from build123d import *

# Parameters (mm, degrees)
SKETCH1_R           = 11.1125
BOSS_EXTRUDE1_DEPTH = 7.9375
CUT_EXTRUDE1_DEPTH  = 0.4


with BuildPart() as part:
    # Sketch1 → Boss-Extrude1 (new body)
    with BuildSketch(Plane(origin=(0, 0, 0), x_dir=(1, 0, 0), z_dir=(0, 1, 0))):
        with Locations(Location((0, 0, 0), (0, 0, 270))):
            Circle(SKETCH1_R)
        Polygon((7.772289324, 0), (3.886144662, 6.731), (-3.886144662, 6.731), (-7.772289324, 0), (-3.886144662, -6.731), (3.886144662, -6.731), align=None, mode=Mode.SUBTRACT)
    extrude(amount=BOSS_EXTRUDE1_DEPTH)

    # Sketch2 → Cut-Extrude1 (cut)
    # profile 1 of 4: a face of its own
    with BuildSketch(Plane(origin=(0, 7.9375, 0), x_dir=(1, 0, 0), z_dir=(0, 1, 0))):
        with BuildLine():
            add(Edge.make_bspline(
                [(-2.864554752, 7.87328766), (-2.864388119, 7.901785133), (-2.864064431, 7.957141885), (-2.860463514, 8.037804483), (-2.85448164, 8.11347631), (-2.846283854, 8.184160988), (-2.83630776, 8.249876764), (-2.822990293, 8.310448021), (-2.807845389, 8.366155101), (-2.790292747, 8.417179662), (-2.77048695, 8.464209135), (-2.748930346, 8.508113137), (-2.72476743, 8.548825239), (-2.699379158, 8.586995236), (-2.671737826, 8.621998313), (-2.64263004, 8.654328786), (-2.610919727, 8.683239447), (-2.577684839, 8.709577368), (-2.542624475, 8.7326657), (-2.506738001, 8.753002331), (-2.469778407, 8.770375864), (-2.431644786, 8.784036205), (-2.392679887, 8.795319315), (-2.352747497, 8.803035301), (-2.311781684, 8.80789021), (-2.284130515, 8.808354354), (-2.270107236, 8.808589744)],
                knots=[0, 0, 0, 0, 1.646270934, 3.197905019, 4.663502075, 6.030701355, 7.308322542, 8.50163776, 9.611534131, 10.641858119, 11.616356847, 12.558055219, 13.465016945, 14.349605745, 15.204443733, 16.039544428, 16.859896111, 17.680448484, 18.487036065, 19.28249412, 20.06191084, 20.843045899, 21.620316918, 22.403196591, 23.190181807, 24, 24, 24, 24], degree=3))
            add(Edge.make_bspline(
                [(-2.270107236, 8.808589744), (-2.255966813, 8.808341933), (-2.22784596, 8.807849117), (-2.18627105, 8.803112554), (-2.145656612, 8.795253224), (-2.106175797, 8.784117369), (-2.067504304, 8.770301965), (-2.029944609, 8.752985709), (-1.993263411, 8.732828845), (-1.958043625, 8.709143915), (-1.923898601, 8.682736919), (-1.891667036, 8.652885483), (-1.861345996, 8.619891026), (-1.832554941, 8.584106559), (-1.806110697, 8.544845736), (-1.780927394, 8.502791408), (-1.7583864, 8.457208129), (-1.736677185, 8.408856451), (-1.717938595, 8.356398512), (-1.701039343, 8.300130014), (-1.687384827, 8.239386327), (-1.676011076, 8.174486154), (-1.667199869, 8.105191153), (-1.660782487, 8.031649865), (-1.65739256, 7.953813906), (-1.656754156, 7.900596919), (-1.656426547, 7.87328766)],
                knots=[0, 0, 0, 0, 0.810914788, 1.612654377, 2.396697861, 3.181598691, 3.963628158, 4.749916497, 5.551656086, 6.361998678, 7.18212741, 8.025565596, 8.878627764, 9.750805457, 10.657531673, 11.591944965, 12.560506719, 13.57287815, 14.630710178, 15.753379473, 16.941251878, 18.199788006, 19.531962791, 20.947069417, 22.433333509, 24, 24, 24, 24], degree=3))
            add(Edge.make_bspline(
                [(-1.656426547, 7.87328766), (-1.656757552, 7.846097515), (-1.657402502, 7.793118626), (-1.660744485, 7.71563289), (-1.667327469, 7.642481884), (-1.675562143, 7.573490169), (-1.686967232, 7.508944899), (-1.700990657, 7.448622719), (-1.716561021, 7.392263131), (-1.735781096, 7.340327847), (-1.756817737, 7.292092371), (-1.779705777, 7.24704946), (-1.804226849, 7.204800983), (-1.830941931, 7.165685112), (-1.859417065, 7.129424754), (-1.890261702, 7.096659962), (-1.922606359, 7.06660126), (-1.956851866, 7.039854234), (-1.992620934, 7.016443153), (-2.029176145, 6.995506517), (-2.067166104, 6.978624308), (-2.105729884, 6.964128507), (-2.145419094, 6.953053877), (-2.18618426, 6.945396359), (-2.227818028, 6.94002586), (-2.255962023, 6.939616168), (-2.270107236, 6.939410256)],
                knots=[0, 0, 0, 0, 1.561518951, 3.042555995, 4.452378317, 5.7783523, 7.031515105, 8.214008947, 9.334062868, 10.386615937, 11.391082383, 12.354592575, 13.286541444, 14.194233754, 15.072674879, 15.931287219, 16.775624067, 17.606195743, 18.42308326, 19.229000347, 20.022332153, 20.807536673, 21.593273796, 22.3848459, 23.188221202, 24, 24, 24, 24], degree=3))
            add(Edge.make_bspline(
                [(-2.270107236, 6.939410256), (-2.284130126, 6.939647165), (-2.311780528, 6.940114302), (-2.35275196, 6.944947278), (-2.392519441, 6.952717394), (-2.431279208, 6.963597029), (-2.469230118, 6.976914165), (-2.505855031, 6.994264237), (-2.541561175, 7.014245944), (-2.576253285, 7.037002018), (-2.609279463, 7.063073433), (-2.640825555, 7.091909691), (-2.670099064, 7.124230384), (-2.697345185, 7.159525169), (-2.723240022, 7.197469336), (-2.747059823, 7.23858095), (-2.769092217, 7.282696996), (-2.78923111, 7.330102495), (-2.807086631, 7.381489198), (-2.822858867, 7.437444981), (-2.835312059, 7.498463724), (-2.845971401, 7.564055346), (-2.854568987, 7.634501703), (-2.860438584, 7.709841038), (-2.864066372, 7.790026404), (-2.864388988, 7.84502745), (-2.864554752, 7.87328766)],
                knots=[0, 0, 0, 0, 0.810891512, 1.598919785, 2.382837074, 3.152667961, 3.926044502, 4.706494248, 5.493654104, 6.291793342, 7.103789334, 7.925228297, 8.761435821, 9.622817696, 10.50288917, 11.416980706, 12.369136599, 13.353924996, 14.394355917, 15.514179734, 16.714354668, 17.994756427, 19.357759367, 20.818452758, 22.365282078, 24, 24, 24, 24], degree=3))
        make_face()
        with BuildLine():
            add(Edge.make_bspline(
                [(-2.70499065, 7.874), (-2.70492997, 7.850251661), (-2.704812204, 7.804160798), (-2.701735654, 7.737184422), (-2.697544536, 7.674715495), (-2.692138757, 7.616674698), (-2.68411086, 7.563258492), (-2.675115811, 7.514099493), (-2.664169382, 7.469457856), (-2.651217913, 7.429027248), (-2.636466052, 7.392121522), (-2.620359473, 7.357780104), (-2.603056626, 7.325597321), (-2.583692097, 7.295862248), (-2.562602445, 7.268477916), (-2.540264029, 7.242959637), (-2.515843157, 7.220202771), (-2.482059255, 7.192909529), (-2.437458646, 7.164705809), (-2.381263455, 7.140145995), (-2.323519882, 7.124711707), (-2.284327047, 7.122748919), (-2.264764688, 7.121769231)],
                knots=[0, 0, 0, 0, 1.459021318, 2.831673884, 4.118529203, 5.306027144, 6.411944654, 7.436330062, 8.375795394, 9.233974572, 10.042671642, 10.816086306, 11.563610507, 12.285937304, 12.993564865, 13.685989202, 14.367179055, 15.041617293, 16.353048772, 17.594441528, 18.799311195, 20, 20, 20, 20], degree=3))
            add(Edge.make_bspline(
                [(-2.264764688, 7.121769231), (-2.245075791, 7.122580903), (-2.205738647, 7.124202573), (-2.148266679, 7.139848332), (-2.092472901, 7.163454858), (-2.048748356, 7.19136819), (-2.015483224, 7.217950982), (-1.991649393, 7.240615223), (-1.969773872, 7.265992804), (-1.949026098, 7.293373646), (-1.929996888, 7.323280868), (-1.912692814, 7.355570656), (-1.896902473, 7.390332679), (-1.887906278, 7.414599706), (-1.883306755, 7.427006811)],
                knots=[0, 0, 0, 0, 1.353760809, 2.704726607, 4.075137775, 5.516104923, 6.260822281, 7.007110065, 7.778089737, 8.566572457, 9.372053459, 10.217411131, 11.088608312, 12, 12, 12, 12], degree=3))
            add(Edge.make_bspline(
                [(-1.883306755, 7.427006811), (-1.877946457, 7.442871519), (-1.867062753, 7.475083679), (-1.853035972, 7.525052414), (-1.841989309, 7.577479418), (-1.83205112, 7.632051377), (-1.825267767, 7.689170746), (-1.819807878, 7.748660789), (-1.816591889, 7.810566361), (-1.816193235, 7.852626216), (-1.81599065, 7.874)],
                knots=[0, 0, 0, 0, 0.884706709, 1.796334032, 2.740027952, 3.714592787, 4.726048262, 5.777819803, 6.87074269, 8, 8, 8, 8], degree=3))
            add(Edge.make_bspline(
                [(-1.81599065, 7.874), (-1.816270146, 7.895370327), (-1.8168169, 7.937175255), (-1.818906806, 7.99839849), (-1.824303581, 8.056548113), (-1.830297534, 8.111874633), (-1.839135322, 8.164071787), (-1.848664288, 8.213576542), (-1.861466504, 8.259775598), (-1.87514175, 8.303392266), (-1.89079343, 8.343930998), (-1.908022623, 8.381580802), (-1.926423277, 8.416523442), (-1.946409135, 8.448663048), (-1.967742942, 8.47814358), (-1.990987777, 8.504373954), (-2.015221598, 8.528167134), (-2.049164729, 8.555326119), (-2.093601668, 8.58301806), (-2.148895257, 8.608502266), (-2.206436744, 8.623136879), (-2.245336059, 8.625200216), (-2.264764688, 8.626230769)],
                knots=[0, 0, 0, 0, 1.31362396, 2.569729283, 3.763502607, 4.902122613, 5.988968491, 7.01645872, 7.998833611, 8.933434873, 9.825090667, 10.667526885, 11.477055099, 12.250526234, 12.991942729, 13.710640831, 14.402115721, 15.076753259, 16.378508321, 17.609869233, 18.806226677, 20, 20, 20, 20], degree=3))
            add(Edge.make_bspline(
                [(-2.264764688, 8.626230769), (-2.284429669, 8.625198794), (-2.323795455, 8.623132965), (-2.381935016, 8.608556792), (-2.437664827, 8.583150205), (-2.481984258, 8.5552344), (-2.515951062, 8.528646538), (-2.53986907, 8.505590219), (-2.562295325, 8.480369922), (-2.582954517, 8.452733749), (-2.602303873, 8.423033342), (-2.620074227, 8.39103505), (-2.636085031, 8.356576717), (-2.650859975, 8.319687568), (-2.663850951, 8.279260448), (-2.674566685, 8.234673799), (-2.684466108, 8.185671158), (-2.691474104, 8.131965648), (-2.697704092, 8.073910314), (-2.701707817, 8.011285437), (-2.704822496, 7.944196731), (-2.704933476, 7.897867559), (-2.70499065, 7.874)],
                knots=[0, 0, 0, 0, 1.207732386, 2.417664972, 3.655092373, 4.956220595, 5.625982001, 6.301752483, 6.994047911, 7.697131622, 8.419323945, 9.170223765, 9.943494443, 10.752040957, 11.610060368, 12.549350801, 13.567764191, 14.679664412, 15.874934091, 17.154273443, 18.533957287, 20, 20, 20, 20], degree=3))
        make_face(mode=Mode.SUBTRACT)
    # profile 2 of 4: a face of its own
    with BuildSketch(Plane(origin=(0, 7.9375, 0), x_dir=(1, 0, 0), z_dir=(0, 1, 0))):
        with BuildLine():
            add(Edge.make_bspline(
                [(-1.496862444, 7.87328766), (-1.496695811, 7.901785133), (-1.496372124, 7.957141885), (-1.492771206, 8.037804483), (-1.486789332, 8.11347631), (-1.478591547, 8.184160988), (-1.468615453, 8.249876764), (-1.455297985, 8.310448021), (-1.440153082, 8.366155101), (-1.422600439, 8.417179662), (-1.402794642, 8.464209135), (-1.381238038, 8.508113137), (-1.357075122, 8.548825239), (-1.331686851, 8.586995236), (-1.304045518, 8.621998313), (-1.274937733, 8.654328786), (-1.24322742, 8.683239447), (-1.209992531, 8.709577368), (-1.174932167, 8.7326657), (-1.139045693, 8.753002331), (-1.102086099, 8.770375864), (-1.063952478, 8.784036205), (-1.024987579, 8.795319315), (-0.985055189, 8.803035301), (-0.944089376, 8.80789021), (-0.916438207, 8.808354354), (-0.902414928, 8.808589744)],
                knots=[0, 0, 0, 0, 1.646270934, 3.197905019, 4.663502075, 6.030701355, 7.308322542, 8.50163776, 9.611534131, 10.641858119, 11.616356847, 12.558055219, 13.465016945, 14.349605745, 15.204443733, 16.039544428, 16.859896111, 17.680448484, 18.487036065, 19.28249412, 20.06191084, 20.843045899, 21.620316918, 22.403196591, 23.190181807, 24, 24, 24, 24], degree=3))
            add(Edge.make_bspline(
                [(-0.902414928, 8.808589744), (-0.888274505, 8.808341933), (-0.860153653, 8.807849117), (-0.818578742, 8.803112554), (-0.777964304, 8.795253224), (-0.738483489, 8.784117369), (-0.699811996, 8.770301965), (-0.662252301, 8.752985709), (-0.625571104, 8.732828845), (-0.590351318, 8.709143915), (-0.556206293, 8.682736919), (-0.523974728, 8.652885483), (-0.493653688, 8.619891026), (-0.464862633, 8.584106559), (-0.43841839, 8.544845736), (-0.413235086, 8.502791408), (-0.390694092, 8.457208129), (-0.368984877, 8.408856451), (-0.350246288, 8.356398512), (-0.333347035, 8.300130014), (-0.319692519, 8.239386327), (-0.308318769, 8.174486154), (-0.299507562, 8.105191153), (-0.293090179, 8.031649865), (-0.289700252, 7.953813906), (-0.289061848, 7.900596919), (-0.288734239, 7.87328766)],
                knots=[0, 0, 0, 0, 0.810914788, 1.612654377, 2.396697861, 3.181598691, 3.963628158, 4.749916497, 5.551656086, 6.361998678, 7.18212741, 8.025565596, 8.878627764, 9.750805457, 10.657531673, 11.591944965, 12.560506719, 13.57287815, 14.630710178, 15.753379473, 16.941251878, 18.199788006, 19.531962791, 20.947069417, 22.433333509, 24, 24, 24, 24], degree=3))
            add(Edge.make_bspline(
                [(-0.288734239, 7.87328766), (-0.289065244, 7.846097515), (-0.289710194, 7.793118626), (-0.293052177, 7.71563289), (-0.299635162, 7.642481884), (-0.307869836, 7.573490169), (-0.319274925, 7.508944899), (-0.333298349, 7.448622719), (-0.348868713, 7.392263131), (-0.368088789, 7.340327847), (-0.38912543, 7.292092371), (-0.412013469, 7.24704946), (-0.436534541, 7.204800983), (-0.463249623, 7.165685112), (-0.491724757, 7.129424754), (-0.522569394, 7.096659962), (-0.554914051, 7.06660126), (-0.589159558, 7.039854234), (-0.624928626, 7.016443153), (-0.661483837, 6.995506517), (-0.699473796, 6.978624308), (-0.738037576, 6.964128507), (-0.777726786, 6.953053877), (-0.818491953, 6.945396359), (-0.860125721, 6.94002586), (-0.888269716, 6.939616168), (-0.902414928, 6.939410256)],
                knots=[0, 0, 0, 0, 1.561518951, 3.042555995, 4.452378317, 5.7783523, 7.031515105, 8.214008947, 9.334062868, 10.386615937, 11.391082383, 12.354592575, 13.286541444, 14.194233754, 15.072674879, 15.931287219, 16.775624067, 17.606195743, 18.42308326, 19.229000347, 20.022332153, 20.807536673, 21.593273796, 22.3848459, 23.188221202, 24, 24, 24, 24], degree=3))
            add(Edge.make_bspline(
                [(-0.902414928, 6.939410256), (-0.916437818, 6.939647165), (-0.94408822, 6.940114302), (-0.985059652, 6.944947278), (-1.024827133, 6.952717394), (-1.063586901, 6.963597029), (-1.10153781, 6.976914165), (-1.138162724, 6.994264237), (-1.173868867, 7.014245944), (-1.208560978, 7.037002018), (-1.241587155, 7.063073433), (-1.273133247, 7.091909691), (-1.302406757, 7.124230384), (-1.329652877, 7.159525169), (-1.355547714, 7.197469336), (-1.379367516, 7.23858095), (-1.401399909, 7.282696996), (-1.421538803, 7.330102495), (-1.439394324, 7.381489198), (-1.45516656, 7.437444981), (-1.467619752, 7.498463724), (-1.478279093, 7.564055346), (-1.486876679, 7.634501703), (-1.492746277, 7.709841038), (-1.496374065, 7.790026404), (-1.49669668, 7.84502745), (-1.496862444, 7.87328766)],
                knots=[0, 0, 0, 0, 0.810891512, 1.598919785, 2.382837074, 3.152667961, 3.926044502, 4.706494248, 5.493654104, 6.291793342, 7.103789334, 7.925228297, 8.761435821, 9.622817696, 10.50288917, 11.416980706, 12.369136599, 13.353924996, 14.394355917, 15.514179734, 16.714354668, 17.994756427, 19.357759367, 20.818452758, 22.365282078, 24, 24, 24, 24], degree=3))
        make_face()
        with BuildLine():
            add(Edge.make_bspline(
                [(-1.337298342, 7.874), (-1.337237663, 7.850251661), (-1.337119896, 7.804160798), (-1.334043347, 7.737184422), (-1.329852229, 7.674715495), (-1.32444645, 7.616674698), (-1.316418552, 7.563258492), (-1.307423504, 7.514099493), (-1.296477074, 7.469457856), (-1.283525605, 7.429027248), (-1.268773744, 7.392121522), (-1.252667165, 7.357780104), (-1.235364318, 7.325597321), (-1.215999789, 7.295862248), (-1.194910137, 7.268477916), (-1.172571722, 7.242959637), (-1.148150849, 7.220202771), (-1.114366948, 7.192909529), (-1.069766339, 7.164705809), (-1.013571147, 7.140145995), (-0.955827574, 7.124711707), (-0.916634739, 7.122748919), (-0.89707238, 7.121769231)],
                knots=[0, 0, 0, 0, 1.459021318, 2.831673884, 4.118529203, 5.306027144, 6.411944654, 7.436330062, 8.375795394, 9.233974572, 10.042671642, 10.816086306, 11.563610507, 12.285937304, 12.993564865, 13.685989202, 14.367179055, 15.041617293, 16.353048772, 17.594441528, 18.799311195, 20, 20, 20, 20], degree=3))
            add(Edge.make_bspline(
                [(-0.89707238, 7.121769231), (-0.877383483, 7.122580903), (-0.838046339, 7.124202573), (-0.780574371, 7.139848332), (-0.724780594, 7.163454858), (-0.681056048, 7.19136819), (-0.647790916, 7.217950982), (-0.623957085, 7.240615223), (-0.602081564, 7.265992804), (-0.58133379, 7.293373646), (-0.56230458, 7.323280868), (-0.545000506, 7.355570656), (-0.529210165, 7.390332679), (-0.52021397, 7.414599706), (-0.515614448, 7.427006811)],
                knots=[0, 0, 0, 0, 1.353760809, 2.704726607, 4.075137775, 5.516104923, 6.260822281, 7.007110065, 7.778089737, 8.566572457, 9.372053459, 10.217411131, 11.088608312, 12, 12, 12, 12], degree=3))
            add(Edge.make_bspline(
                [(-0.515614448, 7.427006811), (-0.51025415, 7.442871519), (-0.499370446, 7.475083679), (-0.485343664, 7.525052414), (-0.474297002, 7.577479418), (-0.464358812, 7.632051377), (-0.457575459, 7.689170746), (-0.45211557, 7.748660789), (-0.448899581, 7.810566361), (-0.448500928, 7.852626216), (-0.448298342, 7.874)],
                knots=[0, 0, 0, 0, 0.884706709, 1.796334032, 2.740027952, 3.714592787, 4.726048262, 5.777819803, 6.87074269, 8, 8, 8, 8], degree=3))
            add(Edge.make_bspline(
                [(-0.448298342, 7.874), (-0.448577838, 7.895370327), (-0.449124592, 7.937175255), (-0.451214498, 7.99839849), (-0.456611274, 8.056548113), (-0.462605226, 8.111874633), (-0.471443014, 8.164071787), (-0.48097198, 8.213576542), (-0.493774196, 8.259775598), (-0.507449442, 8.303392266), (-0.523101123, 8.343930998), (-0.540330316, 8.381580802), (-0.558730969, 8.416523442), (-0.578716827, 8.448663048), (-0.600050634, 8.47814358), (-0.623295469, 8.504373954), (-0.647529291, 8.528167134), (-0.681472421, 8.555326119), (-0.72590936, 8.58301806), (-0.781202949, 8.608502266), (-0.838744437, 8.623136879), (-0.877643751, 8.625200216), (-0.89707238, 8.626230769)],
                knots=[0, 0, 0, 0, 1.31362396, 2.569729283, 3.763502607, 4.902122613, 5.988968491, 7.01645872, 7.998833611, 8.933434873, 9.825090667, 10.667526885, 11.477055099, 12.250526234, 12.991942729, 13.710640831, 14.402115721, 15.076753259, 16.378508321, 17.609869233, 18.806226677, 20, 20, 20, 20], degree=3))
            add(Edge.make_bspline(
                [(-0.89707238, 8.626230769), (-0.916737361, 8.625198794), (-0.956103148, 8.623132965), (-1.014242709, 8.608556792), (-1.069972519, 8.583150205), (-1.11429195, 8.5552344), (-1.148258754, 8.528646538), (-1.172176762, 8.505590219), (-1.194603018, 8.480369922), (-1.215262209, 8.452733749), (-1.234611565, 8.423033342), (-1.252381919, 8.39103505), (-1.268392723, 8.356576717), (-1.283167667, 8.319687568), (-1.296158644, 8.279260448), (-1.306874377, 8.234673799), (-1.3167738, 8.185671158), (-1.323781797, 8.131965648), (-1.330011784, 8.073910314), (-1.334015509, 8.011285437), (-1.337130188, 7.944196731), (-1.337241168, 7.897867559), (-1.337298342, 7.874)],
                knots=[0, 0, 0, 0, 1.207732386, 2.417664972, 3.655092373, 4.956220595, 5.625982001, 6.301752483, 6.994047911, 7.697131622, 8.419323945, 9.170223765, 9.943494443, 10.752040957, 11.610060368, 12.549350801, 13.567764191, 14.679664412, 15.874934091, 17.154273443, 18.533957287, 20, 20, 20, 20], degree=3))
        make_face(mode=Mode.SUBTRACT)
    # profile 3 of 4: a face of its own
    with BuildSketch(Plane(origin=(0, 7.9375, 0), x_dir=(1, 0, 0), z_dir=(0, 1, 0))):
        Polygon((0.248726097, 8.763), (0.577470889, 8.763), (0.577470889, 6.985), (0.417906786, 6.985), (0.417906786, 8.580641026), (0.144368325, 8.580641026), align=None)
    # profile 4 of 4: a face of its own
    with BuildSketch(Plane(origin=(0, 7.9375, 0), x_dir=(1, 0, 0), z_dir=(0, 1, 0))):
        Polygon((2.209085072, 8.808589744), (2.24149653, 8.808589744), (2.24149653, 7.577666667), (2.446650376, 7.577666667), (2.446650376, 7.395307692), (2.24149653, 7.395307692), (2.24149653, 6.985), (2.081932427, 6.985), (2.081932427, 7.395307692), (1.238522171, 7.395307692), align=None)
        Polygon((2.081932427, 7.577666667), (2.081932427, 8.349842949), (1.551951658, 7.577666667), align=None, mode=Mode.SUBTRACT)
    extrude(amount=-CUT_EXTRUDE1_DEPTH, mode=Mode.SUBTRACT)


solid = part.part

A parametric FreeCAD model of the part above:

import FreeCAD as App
import Part
import Sketcher
Q = App.Units.Quantity


def add_polygon(sketch, points):
    """Adds a closed chain of lines whose ends are joined by coincident constraints."""
    first, n = sketch.GeometryCount, len(points)
    for a, b in zip(points, points[1:] + points[:1]):
        sketch.addGeometry(Part.LineSegment(App.Vector(*a, 0), App.Vector(*b, 0)), False)
    for i in range(n):
        sketch.addConstraint(Sketcher.Constraint("Coincident", first + i, 2, first + (i + 1) % n, 1))

doc = App.newDocument("Part")
body = doc.addObject("PartDesign::Body", "Body")

# Sketch on XZ plane
sketch1 = doc.addObject("Sketcher::SketchObject", "Sketch")
body.addObject(sketch1)
sketch1.AttachmentSupport = (doc.XZ_Plane, [""])
sketch1.MapMode = "FlatFace"
sketch1.addGeometry(Part.Circle(App.Vector(0, 0, 0), App.Vector(0, 0, 1), 11), False)  # 0
add_polygon(sketch1, [(4, -7), (8, 0), (4, 7), (-4, 7), (-8, 0), (-4, -7)])  # lines 1-6
sketch1.addConstraint(Sketcher.Constraint("Horizontal", 3))
sketch1.addConstraint(Sketcher.Constraint("Horizontal", 6))
sketch1.addConstraint(Sketcher.Constraint("Coincident", 0, 3, -1, 1))
sketch1.addConstraint(Sketcher.Constraint("Symmetric", 1, 2, 4, 2, -1, 1))
sketch1.addConstraint(Sketcher.Constraint("Symmetric", 2, 2, 5, 2, -1, 1))
sketch1.addConstraint(Sketcher.Constraint("PointOnObject", 1, 2, -1))
sketch1.addConstraint(Sketcher.Constraint("Parallel", 1, 4))
sketch1.addConstraint(Sketcher.Constraint("Vertical", 3, 2, 5, 2))
sketch1.addConstraint(Sketcher.Constraint("Diameter", 0, Q("0.875 in")))
sketch1.addConstraint(Sketcher.Constraint("Angle", 1, Q("60 deg")))
sketch1.addConstraint(Sketcher.Constraint("DistanceY", 5, 2, 3, 2, Q("0.53 in")))
sketch1.addConstraint(Sketcher.Constraint("DistanceX", 3, 2, 3, 1, Q("7.772289 mm")))
pad1 = doc.addObject("PartDesign::Pad", "Pad")
body.addObject(pad1)
pad1.Profile = sketch1
pad1.Length = Q("0.3125 in")
pad1.Reversed = True

# Sketch on XZ plane
sketch2 = doc.addObject("Sketcher::SketchObject", "Sketch001")
body.addObject(sketch2)
sketch2.AttachmentSupport = (doc.XZ_Plane, [""])
sketch2.MapMode = "FlatFace"
sketch2.AttachmentOffset = App.Placement(App.Vector(0, 0, -0.3125 * 25.4), App.Rotation())
sketch2.addGeometry(Part.BSplineCurve([App.Vector(-2.864555, -7.873288, 0), App.Vector(-2.864388, -7.901785, 0), App.Vector(-2.864064, -7.957142, 0), App.Vector(-2.860464, -8.037804, 0), App.Vector(-2.854482, -8.113476, 0), App.Vector(-2.846284, -8.184161, 0), App.Vector(-2.836308, -8.249877, 0), App.Vector(-2.82299, -8.310448, 0), App.Vector(-2.807845, -8.366155, 0), App.Vector(-2.790293, -8.41718, 0), App.Vector(-2.770487, -8.464209, 0), App.Vector(-2.74893, -8.508113, 0), App.Vector(-2.724767, -8.548825, 0), App.Vector(-2.699379, -8.586995, 0), App.Vector(-2.671738, -8.621998, 0), App.Vector(-2.64263, -8.654329, 0), App.Vector(-2.61092, -8.683239, 0), App.Vector(-2.577685, -8.709577, 0), App.Vector(-2.542624, -8.732666, 0), App.Vector(-2.506738, -8.753002, 0), App.Vector(-2.469778, -8.770376, 0), App.Vector(-2.431645, -8.784036, 0), App.Vector(-2.39268, -8.795319, 0), App.Vector(-2.352747, -8.803035, 0), App.Vector(-2.311782, -8.80789, 0), App.Vector(-2.284131, -8.808354, 0), App.Vector(-2.270107, -8.80859, 0)], [4, 1, 1, 1, 1, 1, 1, 1, 1, 1, 1, 1, 1, 1, 1, 1, 1, 1, 1, 1, 1, 1, 1, 1, 4], [0, 1.646270934, 3.197905019, 4.663502075, 6.030701355, 7.308322542, 8.50163776, 9.611534131, 10.641858119, 11.616356847, 12.558055219, 13.465016945, 14.349605745, 15.204443733, 16.039544428, 16.859896111, 17.680448484, 18.487036065, 19.28249412, 20.06191084, 20.843045899, 21.620316918, 22.403196591, 23.190181807, 24], False, 3, [1, 1, 1, 1, 1, 1, 1, 1, 1, 1, 1, 1, 1, 1, 1, 1, 1, 1, 1, 1, 1, 1, 1, 1, 1, 1, 1], False), False)  # 0
sketch2.addGeometry(Part.BSplineCurve([App.Vector(-2.270107, -6.93941, 0), App.Vector(-2.28413, -6.939647, 0), App.Vector(-2.311781, -6.940114, 0), App.Vector(-2.352752, -6.944947, 0), App.Vector(-2.392519, -6.952717, 0), App.Vector(-2.431279, -6.963597, 0), App.Vector(-2.46923, -6.976914, 0), App.Vector(-2.505855, -6.994264, 0), App.Vector(-2.541561, -7.014246, 0), App.Vector(-2.576253, -7.037002, 0), App.Vector(-2.609279, -7.063073, 0), App.Vector(-2.640826, -7.09191, 0), App.Vector(-2.670099, -7.12423, 0), App.Vector(-2.697345, -7.159525, 0), App.Vector(-2.72324, -7.197469, 0), App.Vector(-2.74706, -7.238581, 0), App.Vector(-2.769092, -7.282697, 0), App.Vector(-2.789231, -7.330102, 0), App.Vector(-2.807087, -7.381489, 0), App.Vector(-2.822859, -7.437445, 0), App.Vector(-2.835312, -7.498464, 0), App.Vector(-2.845971, -7.564055, 0), App.Vector(-2.854569, -7.634502, 0), App.Vector(-2.860439, -7.709841, 0), App.Vector(-2.864066, -7.790026, 0), App.Vector(-2.864389, -7.845027, 0), App.Vector(-2.864555, -7.873288, 0)], [4, 1, 1, 1, 1, 1, 1, 1, 1, 1, 1, 1, 1, 1, 1, 1, 1, 1, 1, 1, 1, 1, 1, 1, 4], [0, 0.810891512, 1.598919785, 2.382837074, 3.152667961, 3.926044502, 4.706494248, 5.493654104, 6.291793342, 7.103789334, 7.925228297, 8.761435821, 9.622817696, 10.50288917, 11.416980706, 12.369136599, 13.353924996, 14.394355917, 15.514179734, 16.714354668, 17.994756427, 19.357759367, 20.818452758, 22.365282078, 24], False, 3, [1, 1, 1, 1, 1, 1, 1, 1, 1, 1, 1, 1, 1, 1, 1, 1, 1, 1, 1, 1, 1, 1, 1, 1, 1, 1, 1], False), False)  # 1
sketch2.addGeometry(Part.BSplineCurve([App.Vector(-1.656427, -7.873288, 0), App.Vector(-1.656758, -7.846098, 0), App.Vector(-1.657403, -7.793119, 0), App.Vector(-1.660744, -7.715633, 0), App.Vector(-1.667327, -7.642482, 0), App.Vector(-1.675562, -7.57349, 0), App.Vector(-1.686967, -7.508945, 0), App.Vector(-1.700991, -7.448623, 0), App.Vector(-1.716561, -7.392263, 0), App.Vector(-1.735781, -7.340328, 0), App.Vector(-1.756818, -7.292092, 0), App.Vector(-1.779706, -7.247049, 0), App.Vector(-1.804227, -7.204801, 0), App.Vector(-1.830942, -7.165685, 0), App.Vector(-1.859417, -7.129425, 0), App.Vector(-1.890262, -7.09666, 0), App.Vector(-1.922606, -7.066601, 0), App.Vector(-1.956852, -7.039854, 0), App.Vector(-1.992621, -7.016443, 0), App.Vector(-2.029176, -6.995507, 0), App.Vector(-2.067166, -6.978624, 0), App.Vector(-2.10573, -6.964129, 0), App.Vector(-2.145419, -6.953054, 0), App.Vector(-2.186184, -6.945396, 0), App.Vector(-2.227818, -6.940026, 0), App.Vector(-2.255962, -6.939616, 0), App.Vector(-2.270107, -6.93941, 0)], [4, 1, 1, 1, 1, 1, 1, 1, 1, 1, 1, 1, 1, 1, 1, 1, 1, 1, 1, 1, 1, 1, 1, 1, 4], [0, 1.561518951, 3.042555995, 4.452378317, 5.7783523, 7.031515105, 8.214008947, 9.334062868, 10.386615937, 11.391082383, 12.354592575, 13.286541444, 14.194233754, 15.072674879, 15.931287219, 16.775624067, 17.606195743, 18.42308326, 19.229000347, 20.022332153, 20.807536673, 21.593273796, 22.3848459, 23.188221202, 24], False, 3, [1, 1, 1, 1, 1, 1, 1, 1, 1, 1, 1, 1, 1, 1, 1, 1, 1, 1, 1, 1, 1, 1, 1, 1, 1, 1, 1], False), False)  # 2
sketch2.addGeometry(Part.BSplineCurve([App.Vector(-2.270107, -8.80859, 0), App.Vector(-2.255967, -8.808342, 0), App.Vector(-2.227846, -8.807849, 0), App.Vector(-2.186271, -8.803113, 0), App.Vector(-2.145657, -8.795253, 0), App.Vector(-2.106176, -8.784117, 0), App.Vector(-2.067504, -8.770302, 0), App.Vector(-2.029945, -8.752986, 0), App.Vector(-1.993263, -8.732829, 0), App.Vector(-1.958044, -8.709144, 0), App.Vector(-1.923899, -8.682737, 0), App.Vector(-1.891667, -8.652885, 0), App.Vector(-1.861346, -8.619891, 0), App.Vector(-1.832555, -8.584107, 0), App.Vector(-1.806111, -8.544846, 0), App.Vector(-1.780927, -8.502791, 0), App.Vector(-1.758386, -8.457208, 0), App.Vector(-1.736677, -8.408856, 0), App.Vector(-1.717939, -8.356399, 0), App.Vector(-1.701039, -8.30013, 0), App.Vector(-1.687385, -8.239386, 0), App.Vector(-1.676011, -8.174486, 0), App.Vector(-1.6672, -8.105191, 0), App.Vector(-1.660782, -8.03165, 0), App.Vector(-1.657393, -7.953814, 0), App.Vector(-1.656754, -7.900597, 0), App.Vector(-1.656427, -7.873288, 0)], [4, 1, 1, 1, 1, 1, 1, 1, 1, 1, 1, 1, 1, 1, 1, 1, 1, 1, 1, 1, 1, 1, 1, 1, 4], [0, 0.810914788, 1.612654377, 2.396697861, 3.181598691, 3.963628158, 4.749916497, 5.551656086, 6.361998678, 7.18212741, 8.025565596, 8.878627764, 9.750805457, 10.657531673, 11.591944965, 12.560506719, 13.57287815, 14.630710178, 15.753379473, 16.941251878, 18.199788006, 19.531962791, 20.947069417, 22.433333509, 24], False, 3, [1, 1, 1, 1, 1, 1, 1, 1, 1, 1, 1, 1, 1, 1, 1, 1, 1, 1, 1, 1, 1, 1, 1, 1, 1, 1, 1], False), False)  # 3
sketch2.addGeometry(Part.BSplineCurve([App.Vector(-2.264765, -8.626231, 0), App.Vector(-2.28443, -8.625199, 0), App.Vector(-2.323795, -8.623133, 0), App.Vector(-2.381935, -8.608557, 0), App.Vector(-2.437665, -8.58315, 0), App.Vector(-2.481984, -8.555234, 0), App.Vector(-2.515951, -8.528647, 0), App.Vector(-2.539869, -8.50559, 0), App.Vector(-2.562295, -8.48037, 0), App.Vector(-2.582955, -8.452734, 0), App.Vector(-2.602304, -8.423033, 0), App.Vector(-2.620074, -8.391035, 0), App.Vector(-2.636085, -8.356577, 0), App.Vector(-2.65086, -8.319688, 0), App.Vector(-2.663851, -8.27926, 0), App.Vector(-2.674567, -8.234674, 0), App.Vector(-2.684466, -8.185671, 0), App.Vector(-2.691474, -8.131966, 0), App.Vector(-2.697704, -8.07391, 0), App.Vector(-2.701708, -8.011285, 0), App.Vector(-2.704822, -7.944197, 0), App.Vector(-2.704933, -7.897868, 0), App.Vector(-2.704991, -7.874, 0)], [4, 1, 1, 1, 1, 1, 1, 1, 1, 1, 1, 1, 1, 1, 1, 1, 1, 1, 1, 1, 4], [0, 1.207732386, 2.417664972, 3.655092373, 4.956220595, 5.625982001, 6.301752483, 6.994047911, 7.697131622, 8.419323945, 9.170223765, 9.943494443, 10.752040957, 11.610060368, 12.549350801, 13.567764191, 14.679664412, 15.874934091, 17.154273443, 18.533957287, 20], False, 3, [1, 1, 1, 1, 1, 1, 1, 1, 1, 1, 1, 1, 1, 1, 1, 1, 1, 1, 1, 1, 1, 1, 1], False), False)  # 4
sketch2.addGeometry(Part.BSplineCurve([App.Vector(-1.815991, -7.874, 0), App.Vector(-1.81627, -7.89537, 0), App.Vector(-1.816817, -7.937175, 0), App.Vector(-1.818907, -7.998398, 0), App.Vector(-1.824304, -8.056548, 0), App.Vector(-1.830298, -8.111875, 0), App.Vector(-1.839135, -8.164072, 0), App.Vector(-1.848664, -8.213577, 0), App.Vector(-1.861467, -8.259776, 0), App.Vector(-1.875142, -8.303392, 0), App.Vector(-1.890793, -8.343931, 0), App.Vector(-1.908023, -8.381581, 0), App.Vector(-1.926423, -8.416523, 0), App.Vector(-1.946409, -8.448663, 0), App.Vector(-1.967743, -8.478144, 0), App.Vector(-1.990988, -8.504374, 0), App.Vector(-2.015222, -8.528167, 0), App.Vector(-2.049165, -8.555326, 0), App.Vector(-2.093602, -8.583018, 0), App.Vector(-2.148895, -8.608502, 0), App.Vector(-2.206437, -8.623137, 0), App.Vector(-2.245336, -8.6252, 0), App.Vector(-2.264765, -8.626231, 0)], [4, 1, 1, 1, 1, 1, 1, 1, 1, 1, 1, 1, 1, 1, 1, 1, 1, 1, 1, 1, 4], [0, 1.31362396, 2.569729283, 3.763502607, 4.902122613, 5.988968491, 7.01645872, 7.998833611, 8.933434873, 9.825090667, 10.667526885, 11.477055099, 12.250526234, 12.991942729, 13.710640831, 14.402115721, 15.076753259, 16.378508321, 17.609869233, 18.806226677, 20], False, 3, [1, 1, 1, 1, 1, 1, 1, 1, 1, 1, 1, 1, 1, 1, 1, 1, 1, 1, 1, 1, 1, 1, 1], False), False)  # 5
sketch2.addGeometry(Part.BSplineCurve([App.Vector(-1.883307, -7.427007, 0), App.Vector(-1.877946, -7.442872, 0), App.Vector(-1.867063, -7.475084, 0), App.Vector(-1.853036, -7.525052, 0), App.Vector(-1.841989, -7.577479, 0), App.Vector(-1.832051, -7.632051, 0), App.Vector(-1.825268, -7.689171, 0), App.Vector(-1.819808, -7.748661, 0), App.Vector(-1.816592, -7.810566, 0), App.Vector(-1.816193, -7.852626, 0), App.Vector(-1.815991, -7.874, 0)], [4, 1, 1, 1, 1, 1, 1, 1, 4], [0, 0.884706709, 1.796334032, 2.740027952, 3.714592787, 4.726048262, 5.777819803, 6.87074269, 8], False, 3, [1, 1, 1, 1, 1, 1, 1, 1, 1, 1, 1], False), False)  # 6
sketch2.addGeometry(Part.BSplineCurve([App.Vector(-2.264765, -7.121769, 0), App.Vector(-2.245076, -7.122581, 0), App.Vector(-2.205739, -7.124203, 0), App.Vector(-2.148267, -7.139848, 0), App.Vector(-2.092473, -7.163455, 0), App.Vector(-2.048748, -7.191368, 0), App.Vector(-2.015483, -7.217951, 0), App.Vector(-1.991649, -7.240615, 0), App.Vector(-1.969774, -7.265993, 0), App.Vector(-1.949026, -7.293374, 0), App.Vector(-1.929997, -7.323281, 0), App.Vector(-1.912693, -7.355571, 0), App.Vector(-1.896902, -7.390333, 0), App.Vector(-1.887906, -7.4146, 0), App.Vector(-1.883307, -7.427007, 0)], [4, 1, 1, 1, 1, 1, 1, 1, 1, 1, 1, 1, 4], [0, 1.353760809, 2.704726607, 4.075137775, 5.516104923, 6.260822281, 7.007110065, 7.778089737, 8.566572457, 9.372053459, 10.217411131, 11.088608312, 12], False, 3, [1, 1, 1, 1, 1, 1, 1, 1, 1, 1, 1, 1, 1, 1, 1], False), False)  # 7
sketch2.addGeometry(Part.BSplineCurve([App.Vector(-2.704991, -7.874, 0), App.Vector(-2.70493, -7.850252, 0), App.Vector(-2.704812, -7.804161, 0), App.Vector(-2.701736, -7.737184, 0), App.Vector(-2.697545, -7.674715, 0), App.Vector(-2.692139, -7.616675, 0), App.Vector(-2.684111, -7.563258, 0), App.Vector(-2.675116, -7.514099, 0), App.Vector(-2.664169, -7.469458, 0), App.Vector(-2.651218, -7.429027, 0), App.Vector(-2.636466, -7.392122, 0), App.Vector(-2.620359, -7.35778, 0), App.Vector(-2.603057, -7.325597, 0), App.Vector(-2.583692, -7.295862, 0), App.Vector(-2.562602, -7.268478, 0), App.Vector(-2.540264, -7.24296, 0), App.Vector(-2.515843, -7.220203, 0), App.Vector(-2.482059, -7.19291, 0), App.Vector(-2.437459, -7.164706, 0), App.Vector(-2.381263, -7.140146, 0), App.Vector(-2.32352, -7.124712, 0), App.Vector(-2.284327, -7.122749, 0), App.Vector(-2.264765, -7.121769, 0)], [4, 1, 1, 1, 1, 1, 1, 1, 1, 1, 1, 1, 1, 1, 1, 1, 1, 1, 1, 1, 4], [0, 1.459021318, 2.831673884, 4.118529203, 5.306027144, 6.411944654, 7.436330062, 8.375795394, 9.233974572, 10.042671642, 10.816086306, 11.563610507, 12.285937304, 12.993564865, 13.685989202, 14.367179055, 15.041617293, 16.353048772, 17.594441528, 18.799311195, 20], False, 3, [1, 1, 1, 1, 1, 1, 1, 1, 1, 1, 1, 1, 1, 1, 1, 1, 1, 1, 1, 1, 1, 1, 1], False), False)  # 8
sketch2.addGeometry(Part.BSplineCurve([App.Vector(-1.496862, -7.873288, 0), App.Vector(-1.496696, -7.901785, 0), App.Vector(-1.496372, -7.957142, 0), App.Vector(-1.492771, -8.037804, 0), App.Vector(-1.486789, -8.113476, 0), App.Vector(-1.478592, -8.184161, 0), App.Vector(-1.468615, -8.249877, 0), App.Vector(-1.455298, -8.310448, 0), App.Vector(-1.440153, -8.366155, 0), App.Vector(-1.4226, -8.41718, 0), App.Vector(-1.402795, -8.464209, 0), App.Vector(-1.381238, -8.508113, 0), App.Vector(-1.357075, -8.548825, 0), App.Vector(-1.331687, -8.586995, 0), App.Vector(-1.304046, -8.621998, 0), App.Vector(-1.274938, -8.654329, 0), App.Vector(-1.243227, -8.683239, 0), App.Vector(-1.209993, -8.709577, 0), App.Vector(-1.174932, -8.732666, 0), App.Vector(-1.139046, -8.753002, 0), App.Vector(-1.102086, -8.770376, 0), App.Vector(-1.063952, -8.784036, 0), App.Vector(-1.024988, -8.795319, 0), App.Vector(-0.985055, -8.803035, 0), App.Vector(-0.944089, -8.80789, 0), App.Vector(-0.916438, -8.808354, 0), App.Vector(-0.902415, -8.80859, 0)], [4, 1, 1, 1, 1, 1, 1, 1, 1, 1, 1, 1, 1, 1, 1, 1, 1, 1, 1, 1, 1, 1, 1, 1, 4], [0, 1.646270934, 3.197905019, 4.663502075, 6.030701355, 7.308322542, 8.50163776, 9.611534131, 10.641858119, 11.616356847, 12.558055219, 13.465016945, 14.349605745, 15.204443733, 16.039544428, 16.859896111, 17.680448484, 18.487036065, 19.28249412, 20.06191084, 20.843045899, 21.620316918, 22.403196591, 23.190181807, 24], False, 3, [1, 1, 1, 1, 1, 1, 1, 1, 1, 1, 1, 1, 1, 1, 1, 1, 1, 1, 1, 1, 1, 1, 1, 1, 1, 1, 1], False), False)  # 9
sketch2.addGeometry(Part.BSplineCurve([App.Vector(-0.902415, -6.93941, 0), App.Vector(-0.916438, -6.939647, 0), App.Vector(-0.944088, -6.940114, 0), App.Vector(-0.98506, -6.944947, 0), App.Vector(-1.024827, -6.952717, 0), App.Vector(-1.063587, -6.963597, 0), App.Vector(-1.101538, -6.976914, 0), App.Vector(-1.138163, -6.994264, 0), App.Vector(-1.173869, -7.014246, 0), App.Vector(-1.208561, -7.037002, 0), App.Vector(-1.241587, -7.063073, 0), App.Vector(-1.273133, -7.09191, 0), App.Vector(-1.302407, -7.12423, 0), App.Vector(-1.329653, -7.159525, 0), App.Vector(-1.355548, -7.197469, 0), App.Vector(-1.379368, -7.238581, 0), App.Vector(-1.4014, -7.282697, 0), App.Vector(-1.421539, -7.330102, 0), App.Vector(-1.439394, -7.381489, 0), App.Vector(-1.455167, -7.437445, 0), App.Vector(-1.46762, -7.498464, 0), App.Vector(-1.478279, -7.564055, 0), App.Vector(-1.486877, -7.634502, 0), App.Vector(-1.492746, -7.709841, 0), App.Vector(-1.496374, -7.790026, 0), App.Vector(-1.496697, -7.845027, 0), App.Vector(-1.496862, -7.873288, 0)], [4, 1, 1, 1, 1, 1, 1, 1, 1, 1, 1, 1, 1, 1, 1, 1, 1, 1, 1, 1, 1, 1, 1, 1, 4], [0, 0.810891512, 1.598919785, 2.382837074, 3.152667961, 3.926044502, 4.706494248, 5.493654104, 6.291793342, 7.103789334, 7.925228297, 8.761435821, 9.622817696, 10.50288917, 11.416980706, 12.369136599, 13.353924996, 14.394355917, 15.514179734, 16.714354668, 17.994756427, 19.357759367, 20.818452758, 22.365282078, 24], False, 3, [1, 1, 1, 1, 1, 1, 1, 1, 1, 1, 1, 1, 1, 1, 1, 1, 1, 1, 1, 1, 1, 1, 1, 1, 1, 1, 1], False), False)  # 10
sketch2.addGeometry(Part.BSplineCurve([App.Vector(-0.288734, -7.873288, 0), App.Vector(-0.289065, -7.846098, 0), App.Vector(-0.28971, -7.793119, 0), App.Vector(-0.293052, -7.715633, 0), App.Vector(-0.299635, -7.642482, 0), App.Vector(-0.30787, -7.57349, 0), App.Vector(-0.319275, -7.508945, 0), App.Vector(-0.333298, -7.448623, 0), App.Vector(-0.348869, -7.392263, 0), App.Vector(-0.368089, -7.340328, 0), App.Vector(-0.389125, -7.292092, 0), App.Vector(-0.412013, -7.247049, 0), App.Vector(-0.436535, -7.204801, 0), App.Vector(-0.46325, -7.165685, 0), App.Vector(-0.491725, -7.129425, 0), App.Vector(-0.522569, -7.09666, 0), App.Vector(-0.554914, -7.066601, 0), App.Vector(-0.58916, -7.039854, 0), App.Vector(-0.624929, -7.016443, 0), App.Vector(-0.661484, -6.995507, 0), App.Vector(-0.699474, -6.978624, 0), App.Vector(-0.738038, -6.964129, 0), App.Vector(-0.777727, -6.953054, 0), App.Vector(-0.818492, -6.945396, 0), App.Vector(-0.860126, -6.940026, 0), App.Vector(-0.88827, -6.939616, 0), App.Vector(-0.902415, -6.93941, 0)], [4, 1, 1, 1, 1, 1, 1, 1, 1, 1, 1, 1, 1, 1, 1, 1, 1, 1, 1, 1, 1, 1, 1, 1, 4], [0, 1.561518951, 3.042555995, 4.452378317, 5.7783523, 7.031515105, 8.214008947, 9.334062868, 10.386615937, 11.391082383, 12.354592575, 13.286541444, 14.194233754, 15.072674879, 15.931287219, 16.775624067, 17.606195743, 18.42308326, 19.229000347, 20.022332153, 20.807536673, 21.593273796, 22.3848459, 23.188221202, 24], False, 3, [1, 1, 1, 1, 1, 1, 1, 1, 1, 1, 1, 1, 1, 1, 1, 1, 1, 1, 1, 1, 1, 1, 1, 1, 1, 1, 1], False), False)  # 11
sketch2.addGeometry(Part.BSplineCurve([App.Vector(-0.902415, -8.80859, 0), App.Vector(-0.888275, -8.808342, 0), App.Vector(-0.860154, -8.807849, 0), App.Vector(-0.818579, -8.803113, 0), App.Vector(-0.777964, -8.795253, 0), App.Vector(-0.738483, -8.784117, 0), App.Vector(-0.699812, -8.770302, 0), App.Vector(-0.662252, -8.752986, 0), App.Vector(-0.625571, -8.732829, 0), App.Vector(-0.590351, -8.709144, 0), App.Vector(-0.556206, -8.682737, 0), App.Vector(-0.523975, -8.652885, 0), App.Vector(-0.493654, -8.619891, 0), App.Vector(-0.464863, -8.584107, 0), App.Vector(-0.438418, -8.544846, 0), App.Vector(-0.413235, -8.502791, 0), App.Vector(-0.390694, -8.457208, 0), App.Vector(-0.368985, -8.408856, 0), App.Vector(-0.350246, -8.356399, 0), App.Vector(-0.333347, -8.30013, 0), App.Vector(-0.319693, -8.239386, 0), App.Vector(-0.308319, -8.174486, 0), App.Vector(-0.299508, -8.105191, 0), App.Vector(-0.29309, -8.03165, 0), App.Vector(-0.2897, -7.953814, 0), App.Vector(-0.289062, -7.900597, 0), App.Vector(-0.288734, -7.873288, 0)], [4, 1, 1, 1, 1, 1, 1, 1, 1, 1, 1, 1, 1, 1, 1, 1, 1, 1, 1, 1, 1, 1, 1, 1, 4], [0, 0.810914788, 1.612654377, 2.396697861, 3.181598691, 3.963628158, 4.749916497, 5.551656086, 6.361998678, 7.18212741, 8.025565596, 8.878627764, 9.750805457, 10.657531673, 11.591944965, 12.560506719, 13.57287815, 14.630710178, 15.753379473, 16.941251878, 18.199788006, 19.531962791, 20.947069417, 22.433333509, 24], False, 3, [1, 1, 1, 1, 1, 1, 1, 1, 1, 1, 1, 1, 1, 1, 1, 1, 1, 1, 1, 1, 1, 1, 1, 1, 1, 1, 1], False), False)  # 12
sketch2.addGeometry(Part.BSplineCurve([App.Vector(-0.897072, -8.626231, 0), App.Vector(-0.916737, -8.625199, 0), App.Vector(-0.956103, -8.623133, 0), App.Vector(-1.014243, -8.608557, 0), App.Vector(-1.069973, -8.58315, 0), App.Vector(-1.114292, -8.555234, 0), App.Vector(-1.148259, -8.528647, 0), App.Vector(-1.172177, -8.50559, 0), App.Vector(-1.194603, -8.48037, 0), App.Vector(-1.215262, -8.452734, 0), App.Vector(-1.234612, -8.423033, 0), App.Vector(-1.252382, -8.391035, 0), App.Vector(-1.268393, -8.356577, 0), App.Vector(-1.283168, -8.319688, 0), App.Vector(-1.296159, -8.27926, 0), App.Vector(-1.306874, -8.234674, 0), App.Vector(-1.316774, -8.185671, 0), App.Vector(-1.323782, -8.131966, 0), App.Vector(-1.330012, -8.07391, 0), App.Vector(-1.334016, -8.011285, 0), App.Vector(-1.33713, -7.944197, 0), App.Vector(-1.337241, -7.897868, 0), App.Vector(-1.337298, -7.874, 0)], [4, 1, 1, 1, 1, 1, 1, 1, 1, 1, 1, 1, 1, 1, 1, 1, 1, 1, 1, 1, 4], [0, 1.207732386, 2.417664972, 3.655092373, 4.956220595, 5.625982001, 6.301752483, 6.994047911, 7.697131622, 8.419323945, 9.170223765, 9.943494443, 10.752040957, 11.610060368, 12.549350801, 13.567764191, 14.679664412, 15.874934091, 17.154273443, 18.533957287, 20], False, 3, [1, 1, 1, 1, 1, 1, 1, 1, 1, 1, 1, 1, 1, 1, 1, 1, 1, 1, 1, 1, 1, 1, 1], False), False)  # 13
sketch2.addGeometry(Part.BSplineCurve([App.Vector(-0.448298, -7.874, 0), App.Vector(-0.448578, -7.89537, 0), App.Vector(-0.449125, -7.937175, 0), App.Vector(-0.451214, -7.998398, 0), App.Vector(-0.456611, -8.056548, 0), App.Vector(-0.462605, -8.111875, 0), App.Vector(-0.471443, -8.164072, 0), App.Vector(-0.480972, -8.213577, 0), App.Vector(-0.493774, -8.259776, 0), App.Vector(-0.507449, -8.303392, 0), App.Vector(-0.523101, -8.343931, 0), App.Vector(-0.54033, -8.381581, 0), App.Vector(-0.558731, -8.416523, 0), App.Vector(-0.578717, -8.448663, 0), App.Vector(-0.600051, -8.478144, 0), App.Vector(-0.623295, -8.504374, 0), App.Vector(-0.647529, -8.528167, 0), App.Vector(-0.681472, -8.555326, 0), App.Vector(-0.725909, -8.583018, 0), App.Vector(-0.781203, -8.608502, 0), App.Vector(-0.838744, -8.623137, 0), App.Vector(-0.877644, -8.6252, 0), App.Vector(-0.897072, -8.626231, 0)], [4, 1, 1, 1, 1, 1, 1, 1, 1, 1, 1, 1, 1, 1, 1, 1, 1, 1, 1, 1, 4], [0, 1.31362396, 2.569729283, 3.763502607, 4.902122613, 5.988968491, 7.01645872, 7.998833611, 8.933434873, 9.825090667, 10.667526885, 11.477055099, 12.250526234, 12.991942729, 13.710640831, 14.402115721, 15.076753259, 16.378508321, 17.609869233, 18.806226677, 20], False, 3, [1, 1, 1, 1, 1, 1, 1, 1, 1, 1, 1, 1, 1, 1, 1, 1, 1, 1, 1, 1, 1, 1, 1], False), False)  # 14
sketch2.addGeometry(Part.BSplineCurve([App.Vector(-0.515614, -7.427007, 0), App.Vector(-0.510254, -7.442872, 0), App.Vector(-0.49937, -7.475084, 0), App.Vector(-0.485344, -7.525052, 0), App.Vector(-0.474297, -7.577479, 0), App.Vector(-0.464359, -7.632051, 0), App.Vector(-0.457575, -7.689171, 0), App.Vector(-0.452116, -7.748661, 0), App.Vector(-0.4489, -7.810566, 0), App.Vector(-0.448501, -7.852626, 0), App.Vector(-0.448298, -7.874, 0)], [4, 1, 1, 1, 1, 1, 1, 1, 4], [0, 0.884706709, 1.796334032, 2.740027952, 3.714592787, 4.726048262, 5.777819803, 6.87074269, 8], False, 3, [1, 1, 1, 1, 1, 1, 1, 1, 1, 1, 1], False), False)  # 15
sketch2.addGeometry(Part.BSplineCurve([App.Vector(-0.897072, -7.121769, 0), App.Vector(-0.877383, -7.122581, 0), App.Vector(-0.838046, -7.124203, 0), App.Vector(-0.780574, -7.139848, 0), App.Vector(-0.724781, -7.163455, 0), App.Vector(-0.681056, -7.191368, 0), App.Vector(-0.647791, -7.217951, 0), App.Vector(-0.623957, -7.240615, 0), App.Vector(-0.602082, -7.265993, 0), App.Vector(-0.581334, -7.293374, 0), App.Vector(-0.562305, -7.323281, 0), App.Vector(-0.545001, -7.355571, 0), App.Vector(-0.52921, -7.390333, 0), App.Vector(-0.520214, -7.4146, 0), App.Vector(-0.515614, -7.427007, 0)], [4, 1, 1, 1, 1, 1, 1, 1, 1, 1, 1, 1, 4], [0, 1.353760809, 2.704726607, 4.075137775, 5.516104923, 6.260822281, 7.007110065, 7.778089737, 8.566572457, 9.372053459, 10.217411131, 11.088608312, 12], False, 3, [1, 1, 1, 1, 1, 1, 1, 1, 1, 1, 1, 1, 1, 1, 1], False), False)  # 16
sketch2.addGeometry(Part.BSplineCurve([App.Vector(-1.337298, -7.874, 0), App.Vector(-1.337238, -7.850252, 0), App.Vector(-1.33712, -7.804161, 0), App.Vector(-1.334043, -7.737184, 0), App.Vector(-1.329852, -7.674715, 0), App.Vector(-1.324446, -7.616675, 0), App.Vector(-1.316419, -7.563258, 0), App.Vector(-1.307424, -7.514099, 0), App.Vector(-1.296477, -7.469458, 0), App.Vector(-1.283526, -7.429027, 0), App.Vector(-1.268774, -7.392122, 0), App.Vector(-1.252667, -7.35778, 0), App.Vector(-1.235364, -7.325597, 0), App.Vector(-1.216, -7.295862, 0), App.Vector(-1.19491, -7.268478, 0), App.Vector(-1.172572, -7.24296, 0), App.Vector(-1.148151, -7.220203, 0), App.Vector(-1.114367, -7.19291, 0), App.Vector(-1.069766, -7.164706, 0), App.Vector(-1.013571, -7.140146, 0), App.Vector(-0.955828, -7.124712, 0), App.Vector(-0.916635, -7.122749, 0), App.Vector(-0.897072, -7.121769, 0)], [4, 1, 1, 1, 1, 1, 1, 1, 1, 1, 1, 1, 1, 1, 1, 1, 1, 1, 1, 1, 4], [0, 1.459021318, 2.831673884, 4.118529203, 5.306027144, 6.411944654, 7.436330062, 8.375795394, 9.233974572, 10.042671642, 10.816086306, 11.563610507, 12.285937304, 12.993564865, 13.685989202, 14.367179055, 15.041617293, 16.353048772, 17.594441528, 18.799311195, 20], False, 3, [1, 1, 1, 1, 1, 1, 1, 1, 1, 1, 1, 1, 1, 1, 1, 1, 1, 1, 1, 1, 1, 1, 1], False), False)  # 17
add_polygon(sketch2, [(0.577471, -8.763), (0.248726, -8.763), (0.144368, -8.580641), (0.417907, -8.580641), (0.417907, -6.985), (0.577471, -6.985)])  # lines 18-23
add_polygon(sketch2, [(2.241497, -8.80859), (2.209085, -8.80859), (1.238522, -7.395308), (2.081932, -7.395308), (2.081932, -6.985), (2.241497, -6.985), (2.241497, -7.395308), (2.44665, -7.395308), (2.44665, -7.577667), (2.241497, -7.577667)])  # lines 24-33
add_polygon(sketch2, [(2.081932, -7.577667), (1.551952, -7.577667), (2.081932, -8.349843)])  # lines 34-36
sketch2.addConstraint(Sketcher.Constraint("Block", 0))
sketch2.addConstraint(Sketcher.Constraint("Block", 1))
sketch2.addConstraint(Sketcher.Constraint("Block", 2))
sketch2.addConstraint(Sketcher.Constraint("Block", 3))
sketch2.addConstraint(Sketcher.Constraint("Block", 4))
sketch2.addConstraint(Sketcher.Constraint("Block", 5))
sketch2.addConstraint(Sketcher.Constraint("Block", 6))
sketch2.addConstraint(Sketcher.Constraint("Block", 7))
sketch2.addConstraint(Sketcher.Constraint("Block", 8))
sketch2.addConstraint(Sketcher.Constraint("Block", 9))
sketch2.addConstraint(Sketcher.Constraint("Block", 10))
sketch2.addConstraint(Sketcher.Constraint("Block", 11))
sketch2.addConstraint(Sketcher.Constraint("Block", 12))
sketch2.addConstraint(Sketcher.Constraint("Block", 13))
sketch2.addConstraint(Sketcher.Constraint("Block", 14))
sketch2.addConstraint(Sketcher.Constraint("Block", 15))
sketch2.addConstraint(Sketcher.Constraint("Block", 16))
sketch2.addConstraint(Sketcher.Constraint("Block", 17))
sketch2.addConstraint(Sketcher.Constraint("Horizontal", 18))
sketch2.addConstraint(Sketcher.Constraint("Horizontal", 20))
sketch2.addConstraint(Sketcher.Constraint("Vertical", 21))
sketch2.addConstraint(Sketcher.Constraint("Horizontal", 22))
sketch2.addConstraint(Sketcher.Constraint("Vertical", 23))
sketch2.addConstraint(Sketcher.Constraint("Horizontal", 24))
sketch2.addConstraint(Sketcher.Constraint("Horizontal", 26))
sketch2.addConstraint(Sketcher.Constraint("Vertical", 27))
sketch2.addConstraint(Sketcher.Constraint("Horizontal", 28))
sketch2.addConstraint(Sketcher.Constraint("Vertical", 29))
sketch2.addConstraint(Sketcher.Constraint("Horizontal", 30))
sketch2.addConstraint(Sketcher.Constraint("Vertical", 31))
sketch2.addConstraint(Sketcher.Constraint("Horizontal", 32))
sketch2.addConstraint(Sketcher.Constraint("Vertical", 33))
sketch2.addConstraint(Sketcher.Constraint("Horizontal", 34))
sketch2.addConstraint(Sketcher.Constraint("Vertical", 36))
sketch2.addConstraint(Sketcher.Constraint("Horizontal", 22, 2, 27, 2))
sketch2.addConstraint(Sketcher.Constraint("Horizontal", 26, 2, 29, 2))
sketch2.addConstraint(Sketcher.Constraint("Horizontal", 32, 2, 34, 2))
sketch2.addConstraint(Sketcher.Constraint("Vertical", 29, 2, 32, 2))
sketch2.addConstraint(Sketcher.Constraint("Vertical", 27, 2, 35, 2))
sketch2.addConstraint(Sketcher.Constraint("Equal", 22, 28))
sketch2.addConstraint(Sketcher.Constraint("DistanceY", 23, 2, 23, 1, Q("0.07 in")))
sketch2.addConstraint(Sketcher.Constraint("DistanceY", 18, 2, -1, 1, Q("0.345 in")))
sketch2.addConstraint(Sketcher.Constraint("DistanceX", 20, 1, 20, 2, Q("0.273538 mm")))
sketch2.addConstraint(Sketcher.Constraint("DistanceX", 24, 2, 24, 1, Q("0.032411 mm")))
sketch2.addConstraint(Sketcher.Constraint("DistanceX", 26, 1, 26, 2, Q("0.84341 mm")))
sketch2.addConstraint(Sketcher.Constraint("DistanceX", 34, 2, 34, 1, Q("0.529981 mm")))
sketch2.addConstraint(Sketcher.Constraint("DistanceY", 21, 1, 21, 2, Q("1.595641 mm")))
sketch2.addConstraint(Sketcher.Constraint("DistanceY", 31, 2, 31, 1, Q("0.182359 mm")))
sketch2.addConstraint(Sketcher.Constraint("DistanceX", 18, 2, 18, 1, Q("0.328745 mm")))
sketch2.addConstraint(Sketcher.Constraint("DistanceX", 22, 1, 22, 2, Q("0.159564 mm")))
sketch2.addConstraint(Sketcher.Constraint("DistanceX", 30, 1, 30, 2, Q("0.205154 mm")))
sketch2.addConstraint(Sketcher.Constraint("DistanceY", 27, 1, 27, 2, Q("0.410308 mm")))
sketch2.addConstraint(Sketcher.Constraint("DistanceY", 33, 2, 33, 1, Q("1.230923 mm")))
sketch2.addConstraint(Sketcher.Constraint("DistanceY", 36, 1, 36, 2, Q("0.772176 mm")))
sketch2.addConstraint(Sketcher.Constraint("DistanceX", -1, 1, 19, 2, Q("0.144368 mm")))
sketch2.addConstraint(Sketcher.Constraint("DistanceX", -1, 1, 30, 2, Q("2.44665 mm")))
pocket1 = doc.addObject("PartDesign::Pocket", "Pocket")
body.addObject(pocket1)
pocket1.Profile = sketch2
pocket1.Length = 0.4
pocket1.Reversed = True

doc.recompute()
